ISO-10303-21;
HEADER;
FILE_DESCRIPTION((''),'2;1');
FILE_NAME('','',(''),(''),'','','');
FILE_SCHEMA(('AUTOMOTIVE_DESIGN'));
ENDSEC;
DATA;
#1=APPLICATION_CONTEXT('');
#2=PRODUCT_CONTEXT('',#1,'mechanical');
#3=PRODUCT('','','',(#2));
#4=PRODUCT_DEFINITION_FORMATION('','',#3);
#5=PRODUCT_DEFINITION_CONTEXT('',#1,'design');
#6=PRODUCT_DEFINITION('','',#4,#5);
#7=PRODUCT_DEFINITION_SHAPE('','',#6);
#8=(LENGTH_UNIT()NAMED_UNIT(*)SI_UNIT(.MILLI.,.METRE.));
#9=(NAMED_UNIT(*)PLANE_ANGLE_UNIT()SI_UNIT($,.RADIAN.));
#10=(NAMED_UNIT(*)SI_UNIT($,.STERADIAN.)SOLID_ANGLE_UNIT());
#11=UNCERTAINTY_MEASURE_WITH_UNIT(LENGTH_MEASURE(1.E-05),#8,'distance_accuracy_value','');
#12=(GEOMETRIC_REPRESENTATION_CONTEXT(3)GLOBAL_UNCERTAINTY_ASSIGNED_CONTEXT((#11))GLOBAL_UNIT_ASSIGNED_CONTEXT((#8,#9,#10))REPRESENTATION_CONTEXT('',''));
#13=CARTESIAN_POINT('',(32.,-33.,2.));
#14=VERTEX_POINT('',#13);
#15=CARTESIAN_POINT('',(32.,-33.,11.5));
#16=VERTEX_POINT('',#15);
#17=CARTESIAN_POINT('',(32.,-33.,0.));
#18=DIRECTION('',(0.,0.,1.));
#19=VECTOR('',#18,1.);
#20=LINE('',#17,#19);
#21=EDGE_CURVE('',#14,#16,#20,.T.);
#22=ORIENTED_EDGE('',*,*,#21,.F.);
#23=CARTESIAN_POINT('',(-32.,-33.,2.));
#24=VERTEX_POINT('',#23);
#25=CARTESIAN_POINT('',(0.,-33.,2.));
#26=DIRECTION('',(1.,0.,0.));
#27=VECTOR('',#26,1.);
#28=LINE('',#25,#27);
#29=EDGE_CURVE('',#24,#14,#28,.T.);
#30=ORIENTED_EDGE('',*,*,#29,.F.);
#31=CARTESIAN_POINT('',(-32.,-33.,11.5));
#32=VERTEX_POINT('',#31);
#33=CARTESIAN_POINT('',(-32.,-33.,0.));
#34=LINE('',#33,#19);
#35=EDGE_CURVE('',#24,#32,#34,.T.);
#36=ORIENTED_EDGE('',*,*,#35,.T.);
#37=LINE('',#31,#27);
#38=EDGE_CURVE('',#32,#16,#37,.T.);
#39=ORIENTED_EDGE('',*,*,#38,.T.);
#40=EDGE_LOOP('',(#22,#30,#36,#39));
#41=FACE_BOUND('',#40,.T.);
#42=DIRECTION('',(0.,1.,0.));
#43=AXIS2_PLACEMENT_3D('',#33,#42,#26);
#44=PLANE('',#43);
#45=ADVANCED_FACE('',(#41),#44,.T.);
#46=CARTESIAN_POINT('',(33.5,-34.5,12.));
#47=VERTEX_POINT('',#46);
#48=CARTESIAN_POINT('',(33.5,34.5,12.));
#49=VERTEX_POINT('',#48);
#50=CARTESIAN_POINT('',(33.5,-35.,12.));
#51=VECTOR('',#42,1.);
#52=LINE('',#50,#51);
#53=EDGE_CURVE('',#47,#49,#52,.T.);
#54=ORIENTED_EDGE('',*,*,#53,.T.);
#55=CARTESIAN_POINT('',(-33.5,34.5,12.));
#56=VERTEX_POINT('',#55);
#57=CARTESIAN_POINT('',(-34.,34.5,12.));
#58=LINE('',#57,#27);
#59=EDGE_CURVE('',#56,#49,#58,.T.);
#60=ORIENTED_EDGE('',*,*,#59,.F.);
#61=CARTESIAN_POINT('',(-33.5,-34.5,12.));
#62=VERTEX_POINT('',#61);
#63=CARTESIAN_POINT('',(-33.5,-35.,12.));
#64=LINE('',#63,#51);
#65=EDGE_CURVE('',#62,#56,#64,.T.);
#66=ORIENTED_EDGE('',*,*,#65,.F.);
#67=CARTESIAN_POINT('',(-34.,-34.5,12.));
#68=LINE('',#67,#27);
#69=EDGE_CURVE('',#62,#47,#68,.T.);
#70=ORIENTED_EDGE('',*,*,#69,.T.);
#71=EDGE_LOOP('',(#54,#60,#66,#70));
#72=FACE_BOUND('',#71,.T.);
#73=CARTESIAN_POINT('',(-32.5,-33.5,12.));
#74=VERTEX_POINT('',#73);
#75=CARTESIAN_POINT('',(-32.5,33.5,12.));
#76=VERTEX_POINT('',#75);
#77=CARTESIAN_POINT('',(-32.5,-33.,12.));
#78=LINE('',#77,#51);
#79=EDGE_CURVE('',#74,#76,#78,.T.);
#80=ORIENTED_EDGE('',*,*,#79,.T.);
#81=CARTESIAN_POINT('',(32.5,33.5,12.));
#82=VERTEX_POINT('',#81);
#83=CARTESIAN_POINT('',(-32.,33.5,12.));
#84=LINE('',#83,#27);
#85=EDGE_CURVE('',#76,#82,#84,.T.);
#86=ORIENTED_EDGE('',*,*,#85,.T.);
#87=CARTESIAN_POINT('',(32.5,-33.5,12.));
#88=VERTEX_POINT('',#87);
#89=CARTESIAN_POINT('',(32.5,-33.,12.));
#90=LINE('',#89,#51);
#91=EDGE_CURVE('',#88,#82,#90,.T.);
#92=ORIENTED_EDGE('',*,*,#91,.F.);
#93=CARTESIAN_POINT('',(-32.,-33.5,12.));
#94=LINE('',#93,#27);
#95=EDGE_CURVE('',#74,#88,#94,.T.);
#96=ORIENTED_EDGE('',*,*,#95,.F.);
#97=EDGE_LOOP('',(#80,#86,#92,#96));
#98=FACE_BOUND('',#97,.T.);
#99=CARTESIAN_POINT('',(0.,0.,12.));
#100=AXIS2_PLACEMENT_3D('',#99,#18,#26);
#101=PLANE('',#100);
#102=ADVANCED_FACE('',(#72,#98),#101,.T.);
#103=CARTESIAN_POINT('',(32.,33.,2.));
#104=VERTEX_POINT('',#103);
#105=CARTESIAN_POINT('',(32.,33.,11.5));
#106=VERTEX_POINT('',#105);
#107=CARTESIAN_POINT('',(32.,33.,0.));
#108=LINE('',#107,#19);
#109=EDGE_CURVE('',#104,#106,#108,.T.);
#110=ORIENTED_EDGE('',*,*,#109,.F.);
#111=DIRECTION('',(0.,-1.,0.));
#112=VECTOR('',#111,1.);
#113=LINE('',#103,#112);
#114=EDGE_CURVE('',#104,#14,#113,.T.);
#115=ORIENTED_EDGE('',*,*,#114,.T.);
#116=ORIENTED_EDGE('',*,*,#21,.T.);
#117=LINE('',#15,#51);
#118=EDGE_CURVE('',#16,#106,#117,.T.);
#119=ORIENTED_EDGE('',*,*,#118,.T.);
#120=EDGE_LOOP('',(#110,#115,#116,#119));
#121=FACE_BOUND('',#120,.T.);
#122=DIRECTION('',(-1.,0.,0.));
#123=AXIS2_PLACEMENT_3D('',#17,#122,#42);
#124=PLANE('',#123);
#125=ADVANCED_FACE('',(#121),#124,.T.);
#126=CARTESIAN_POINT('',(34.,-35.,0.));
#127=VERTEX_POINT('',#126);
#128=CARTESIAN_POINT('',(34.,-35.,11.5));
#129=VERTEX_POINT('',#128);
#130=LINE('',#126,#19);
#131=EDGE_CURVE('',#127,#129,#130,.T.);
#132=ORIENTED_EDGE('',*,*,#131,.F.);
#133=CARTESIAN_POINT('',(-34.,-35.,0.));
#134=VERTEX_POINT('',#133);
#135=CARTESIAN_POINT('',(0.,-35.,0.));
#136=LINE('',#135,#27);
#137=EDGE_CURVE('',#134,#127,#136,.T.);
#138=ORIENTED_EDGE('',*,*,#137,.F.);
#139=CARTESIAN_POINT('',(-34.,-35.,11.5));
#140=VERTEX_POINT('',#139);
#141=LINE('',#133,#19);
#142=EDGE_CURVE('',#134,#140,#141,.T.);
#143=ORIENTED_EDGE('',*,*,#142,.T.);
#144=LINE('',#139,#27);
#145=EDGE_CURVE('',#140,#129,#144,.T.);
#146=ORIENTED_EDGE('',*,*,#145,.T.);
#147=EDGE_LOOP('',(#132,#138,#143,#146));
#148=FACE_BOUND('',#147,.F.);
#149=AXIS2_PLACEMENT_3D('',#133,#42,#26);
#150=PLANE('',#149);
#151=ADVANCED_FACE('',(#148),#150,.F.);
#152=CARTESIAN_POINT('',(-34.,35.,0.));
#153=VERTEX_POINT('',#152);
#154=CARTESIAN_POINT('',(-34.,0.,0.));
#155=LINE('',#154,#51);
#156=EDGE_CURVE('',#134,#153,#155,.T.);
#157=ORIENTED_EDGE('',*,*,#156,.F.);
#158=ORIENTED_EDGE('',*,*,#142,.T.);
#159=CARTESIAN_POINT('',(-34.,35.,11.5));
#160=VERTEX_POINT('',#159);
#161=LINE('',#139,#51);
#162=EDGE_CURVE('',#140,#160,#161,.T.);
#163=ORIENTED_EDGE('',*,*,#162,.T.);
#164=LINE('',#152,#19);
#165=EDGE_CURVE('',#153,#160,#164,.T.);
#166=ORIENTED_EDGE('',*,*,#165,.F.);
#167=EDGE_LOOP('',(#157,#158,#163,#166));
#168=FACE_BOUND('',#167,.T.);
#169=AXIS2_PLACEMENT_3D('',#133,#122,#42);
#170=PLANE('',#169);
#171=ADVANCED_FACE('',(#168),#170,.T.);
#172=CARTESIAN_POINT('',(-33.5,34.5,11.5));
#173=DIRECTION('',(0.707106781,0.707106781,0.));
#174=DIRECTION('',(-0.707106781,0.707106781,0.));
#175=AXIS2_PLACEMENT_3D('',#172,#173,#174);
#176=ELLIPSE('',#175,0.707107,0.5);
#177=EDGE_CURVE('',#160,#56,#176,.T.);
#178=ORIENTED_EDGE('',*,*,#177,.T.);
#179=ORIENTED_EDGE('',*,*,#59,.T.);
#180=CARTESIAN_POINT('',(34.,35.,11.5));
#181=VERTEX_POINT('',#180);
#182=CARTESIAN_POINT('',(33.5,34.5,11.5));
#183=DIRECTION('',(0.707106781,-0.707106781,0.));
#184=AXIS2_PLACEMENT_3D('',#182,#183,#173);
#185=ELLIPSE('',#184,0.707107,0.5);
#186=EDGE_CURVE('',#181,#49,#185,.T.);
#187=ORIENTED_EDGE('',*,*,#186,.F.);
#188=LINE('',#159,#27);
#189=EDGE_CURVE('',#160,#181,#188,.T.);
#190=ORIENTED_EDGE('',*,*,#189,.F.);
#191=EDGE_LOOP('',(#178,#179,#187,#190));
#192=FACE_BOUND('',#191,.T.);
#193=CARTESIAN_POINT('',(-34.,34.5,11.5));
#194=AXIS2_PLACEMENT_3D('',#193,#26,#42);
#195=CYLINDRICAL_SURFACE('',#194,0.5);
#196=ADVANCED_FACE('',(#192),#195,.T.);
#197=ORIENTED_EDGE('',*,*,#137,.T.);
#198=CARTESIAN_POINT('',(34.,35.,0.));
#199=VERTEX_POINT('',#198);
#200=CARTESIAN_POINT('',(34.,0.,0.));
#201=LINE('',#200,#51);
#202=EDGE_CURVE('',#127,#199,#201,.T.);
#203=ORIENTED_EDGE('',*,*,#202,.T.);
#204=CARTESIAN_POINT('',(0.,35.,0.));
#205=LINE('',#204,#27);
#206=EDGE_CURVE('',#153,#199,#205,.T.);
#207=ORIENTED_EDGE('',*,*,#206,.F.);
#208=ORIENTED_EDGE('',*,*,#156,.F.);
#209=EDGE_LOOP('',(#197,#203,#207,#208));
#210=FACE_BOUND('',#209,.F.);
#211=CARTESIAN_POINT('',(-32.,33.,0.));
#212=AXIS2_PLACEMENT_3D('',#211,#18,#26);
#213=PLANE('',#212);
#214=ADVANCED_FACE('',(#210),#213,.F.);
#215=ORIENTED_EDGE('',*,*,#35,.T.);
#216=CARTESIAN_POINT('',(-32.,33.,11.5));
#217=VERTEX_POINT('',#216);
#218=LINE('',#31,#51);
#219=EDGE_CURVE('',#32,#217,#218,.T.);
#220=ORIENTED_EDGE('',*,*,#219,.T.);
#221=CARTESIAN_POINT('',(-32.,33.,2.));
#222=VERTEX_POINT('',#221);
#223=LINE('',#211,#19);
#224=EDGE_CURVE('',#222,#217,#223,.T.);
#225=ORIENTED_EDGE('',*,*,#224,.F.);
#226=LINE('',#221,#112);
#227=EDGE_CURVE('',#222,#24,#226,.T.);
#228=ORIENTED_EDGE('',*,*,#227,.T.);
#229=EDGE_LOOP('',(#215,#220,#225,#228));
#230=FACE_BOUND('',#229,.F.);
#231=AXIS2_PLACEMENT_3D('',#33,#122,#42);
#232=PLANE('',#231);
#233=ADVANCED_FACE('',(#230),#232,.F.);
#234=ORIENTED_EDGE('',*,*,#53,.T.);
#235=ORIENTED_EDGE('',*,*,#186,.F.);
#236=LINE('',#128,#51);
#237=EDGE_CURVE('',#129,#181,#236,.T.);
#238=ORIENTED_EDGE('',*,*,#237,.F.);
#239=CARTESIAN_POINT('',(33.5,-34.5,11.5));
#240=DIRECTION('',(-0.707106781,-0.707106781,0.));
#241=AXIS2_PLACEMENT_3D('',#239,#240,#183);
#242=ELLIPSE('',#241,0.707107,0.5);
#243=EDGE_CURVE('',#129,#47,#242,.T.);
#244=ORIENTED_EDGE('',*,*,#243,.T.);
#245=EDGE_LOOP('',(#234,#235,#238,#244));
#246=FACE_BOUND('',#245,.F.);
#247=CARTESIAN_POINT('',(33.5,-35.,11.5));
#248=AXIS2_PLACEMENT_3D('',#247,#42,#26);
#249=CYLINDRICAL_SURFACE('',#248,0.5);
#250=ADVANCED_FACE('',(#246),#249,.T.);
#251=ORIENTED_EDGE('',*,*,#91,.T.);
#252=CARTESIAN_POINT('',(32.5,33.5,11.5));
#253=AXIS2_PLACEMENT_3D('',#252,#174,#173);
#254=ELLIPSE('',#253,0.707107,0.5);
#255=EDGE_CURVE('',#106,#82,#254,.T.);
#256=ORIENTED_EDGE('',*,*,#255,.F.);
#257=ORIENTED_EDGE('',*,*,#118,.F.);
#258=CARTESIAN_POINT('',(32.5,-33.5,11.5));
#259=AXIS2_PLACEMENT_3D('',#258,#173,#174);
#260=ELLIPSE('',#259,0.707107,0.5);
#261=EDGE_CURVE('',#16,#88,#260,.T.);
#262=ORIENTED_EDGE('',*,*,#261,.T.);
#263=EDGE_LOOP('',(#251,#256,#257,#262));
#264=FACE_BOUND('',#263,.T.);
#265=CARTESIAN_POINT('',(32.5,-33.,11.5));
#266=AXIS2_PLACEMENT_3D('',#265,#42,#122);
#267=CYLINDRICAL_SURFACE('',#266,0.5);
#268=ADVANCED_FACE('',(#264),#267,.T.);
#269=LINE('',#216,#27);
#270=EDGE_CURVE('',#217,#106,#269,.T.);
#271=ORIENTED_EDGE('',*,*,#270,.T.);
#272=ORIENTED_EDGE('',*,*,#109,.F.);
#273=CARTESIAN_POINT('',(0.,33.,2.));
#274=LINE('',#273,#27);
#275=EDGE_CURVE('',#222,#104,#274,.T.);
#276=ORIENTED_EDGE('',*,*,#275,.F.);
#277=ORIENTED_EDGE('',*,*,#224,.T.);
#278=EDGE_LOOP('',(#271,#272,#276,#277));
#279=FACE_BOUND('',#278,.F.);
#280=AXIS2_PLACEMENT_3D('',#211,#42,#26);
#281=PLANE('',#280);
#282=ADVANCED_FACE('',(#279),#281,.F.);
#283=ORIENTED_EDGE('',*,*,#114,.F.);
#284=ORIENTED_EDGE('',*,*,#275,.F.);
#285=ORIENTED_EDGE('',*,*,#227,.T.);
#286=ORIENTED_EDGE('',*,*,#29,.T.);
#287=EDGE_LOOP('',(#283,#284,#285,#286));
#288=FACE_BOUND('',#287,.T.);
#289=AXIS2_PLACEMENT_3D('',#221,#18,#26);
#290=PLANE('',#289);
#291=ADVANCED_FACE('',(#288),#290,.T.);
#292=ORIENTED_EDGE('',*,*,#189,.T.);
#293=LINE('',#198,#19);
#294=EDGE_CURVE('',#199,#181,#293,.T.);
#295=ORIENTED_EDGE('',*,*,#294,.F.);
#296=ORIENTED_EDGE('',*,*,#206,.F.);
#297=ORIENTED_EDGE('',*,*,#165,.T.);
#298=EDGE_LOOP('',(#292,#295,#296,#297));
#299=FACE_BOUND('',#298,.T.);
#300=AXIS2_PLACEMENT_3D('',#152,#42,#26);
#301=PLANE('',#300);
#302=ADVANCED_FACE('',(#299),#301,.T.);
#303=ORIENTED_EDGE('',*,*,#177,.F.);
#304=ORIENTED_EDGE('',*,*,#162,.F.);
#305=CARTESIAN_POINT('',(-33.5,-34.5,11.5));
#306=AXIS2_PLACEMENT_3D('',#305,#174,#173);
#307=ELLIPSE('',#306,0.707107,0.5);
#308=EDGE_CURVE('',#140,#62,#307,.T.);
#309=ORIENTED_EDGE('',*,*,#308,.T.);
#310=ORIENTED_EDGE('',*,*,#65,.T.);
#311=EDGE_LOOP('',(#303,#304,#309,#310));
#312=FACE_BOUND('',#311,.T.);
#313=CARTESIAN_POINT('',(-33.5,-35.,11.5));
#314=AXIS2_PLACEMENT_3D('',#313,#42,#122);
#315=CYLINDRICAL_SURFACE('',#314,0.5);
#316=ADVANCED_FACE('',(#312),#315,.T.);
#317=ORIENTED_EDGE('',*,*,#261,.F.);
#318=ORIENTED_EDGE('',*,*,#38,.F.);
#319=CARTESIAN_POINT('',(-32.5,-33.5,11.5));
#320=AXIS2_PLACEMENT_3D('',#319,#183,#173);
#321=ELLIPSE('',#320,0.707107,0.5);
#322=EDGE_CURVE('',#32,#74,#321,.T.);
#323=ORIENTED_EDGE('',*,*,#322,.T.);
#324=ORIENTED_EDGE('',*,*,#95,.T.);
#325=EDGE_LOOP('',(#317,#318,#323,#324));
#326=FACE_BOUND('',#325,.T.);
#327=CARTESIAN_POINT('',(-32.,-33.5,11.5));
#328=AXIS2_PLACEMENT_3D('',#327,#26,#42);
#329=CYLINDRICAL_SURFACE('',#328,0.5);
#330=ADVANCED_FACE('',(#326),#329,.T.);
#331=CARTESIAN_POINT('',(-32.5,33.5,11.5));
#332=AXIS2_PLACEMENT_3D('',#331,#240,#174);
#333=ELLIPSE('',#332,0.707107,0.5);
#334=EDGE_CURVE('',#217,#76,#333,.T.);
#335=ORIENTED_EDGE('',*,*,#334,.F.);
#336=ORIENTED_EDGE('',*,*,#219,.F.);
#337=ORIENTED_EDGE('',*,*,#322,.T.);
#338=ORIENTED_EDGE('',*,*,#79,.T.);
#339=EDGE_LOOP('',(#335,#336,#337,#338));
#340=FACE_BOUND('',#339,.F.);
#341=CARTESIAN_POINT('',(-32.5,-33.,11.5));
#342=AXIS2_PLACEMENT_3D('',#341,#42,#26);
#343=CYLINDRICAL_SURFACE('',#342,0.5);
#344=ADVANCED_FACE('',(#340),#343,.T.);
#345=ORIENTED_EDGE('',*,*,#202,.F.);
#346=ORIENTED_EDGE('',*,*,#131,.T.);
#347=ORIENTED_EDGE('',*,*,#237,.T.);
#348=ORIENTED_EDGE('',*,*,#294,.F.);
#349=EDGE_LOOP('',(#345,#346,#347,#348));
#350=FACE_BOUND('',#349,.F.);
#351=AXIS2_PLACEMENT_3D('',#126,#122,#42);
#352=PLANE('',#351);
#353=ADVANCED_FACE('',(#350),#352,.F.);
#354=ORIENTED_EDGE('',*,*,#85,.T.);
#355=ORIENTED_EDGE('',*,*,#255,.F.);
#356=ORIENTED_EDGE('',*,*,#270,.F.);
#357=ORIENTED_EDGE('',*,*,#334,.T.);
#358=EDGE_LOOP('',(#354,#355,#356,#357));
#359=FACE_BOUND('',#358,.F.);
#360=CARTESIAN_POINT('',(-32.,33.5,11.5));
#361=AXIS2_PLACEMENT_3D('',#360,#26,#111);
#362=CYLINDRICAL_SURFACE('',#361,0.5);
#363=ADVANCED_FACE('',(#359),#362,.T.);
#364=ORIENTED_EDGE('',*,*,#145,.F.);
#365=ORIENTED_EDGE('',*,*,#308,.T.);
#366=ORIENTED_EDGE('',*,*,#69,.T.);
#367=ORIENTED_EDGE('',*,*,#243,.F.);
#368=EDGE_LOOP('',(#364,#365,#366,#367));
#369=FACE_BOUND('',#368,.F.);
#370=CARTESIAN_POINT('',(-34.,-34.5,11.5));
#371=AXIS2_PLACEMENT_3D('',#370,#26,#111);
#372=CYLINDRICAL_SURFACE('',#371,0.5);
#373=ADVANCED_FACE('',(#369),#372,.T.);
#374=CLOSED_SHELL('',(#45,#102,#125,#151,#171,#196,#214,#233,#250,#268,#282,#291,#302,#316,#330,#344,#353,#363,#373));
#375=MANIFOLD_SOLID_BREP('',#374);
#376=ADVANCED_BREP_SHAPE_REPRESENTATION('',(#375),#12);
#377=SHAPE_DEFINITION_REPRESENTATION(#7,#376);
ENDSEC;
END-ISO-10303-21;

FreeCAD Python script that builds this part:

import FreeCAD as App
import Part
import Sketcher

V = App.Vector


def edges_at(feature, points):
    """Names of the edges that pass closest to the given points."""
    edges = feature.Shape.Edges
    near = lambda p: min(range(len(edges)), key=lambda i: edges[i].distToShape(Part.Vertex(*p))[0])
    return sorted({f"Edge{near(p) + 1}" for p in points})


def add_polygon(sketch, points):
    """Adds a closed chain of lines whose ends are joined by coincident constraints."""
    first, n = sketch.GeometryCount, len(points)
    for a, b in zip(points, points[1:] + points[:1]):
        sketch.addGeometry(Part.LineSegment(App.Vector(*a, 0), App.Vector(*b, 0)), False)
    for i in range(n):
        sketch.addConstraint(Sketcher.Constraint("Coincident", first + i, 2, first + (i + 1) % n, 1))

doc = App.newDocument("Part")
body = doc.addObject("PartDesign::Body", "Body")

# Sketch on XY plane
sketch1 = body.newObject("Sketcher::SketchObject", "Sketch")
sketch1.AttachmentSupport = (doc.getObject("XY_Plane"), [""])
sketch1.MapMode = "FlatFace"
add_polygon(sketch1, [(-34, 35), (-34, -35), (34, -35), (34, 35)])  # lines 0-3
add_polygon(sketch1, [(32, -33), (-32, -33), (-32, 33), (32, 33)])  # lines 4-7
sketch1.addConstraint([
    Sketcher.Constraint("Vertical", 0),
    Sketcher.Constraint("Horizontal", 1),
    Sketcher.Constraint("Vertical", 2),
    Sketcher.Constraint("Horizontal", 3),
    Sketcher.Constraint("Horizontal", 4),
    Sketcher.Constraint("Vertical", 5),
    Sketcher.Constraint("Horizontal", 6),
    Sketcher.Constraint("Vertical", 7),
    Sketcher.Constraint("Symmetric", 0, 2, 2, 2, -1, 1),
    Sketcher.Constraint("Symmetric", 4, 2, 6, 2, -1, 1),
    Sketcher.Constraint("DistanceX", 1, 1, 1, 2, 68.0),
    Sketcher.Constraint("DistanceX", 4, 2, 4, 1, 64.0),
    Sketcher.Constraint("DistanceY", 0, 2, 0, 1, 70.0),
    Sketcher.Constraint("DistanceY", 5, 1, 5, 2, 66.0),
])
pad1 = body.newObject("PartDesign::Pad", "Pad")
pad1.Profile = sketch1
pad1.Length = 12
doc.recompute()

fillet = body.newObject("PartDesign::Fillet", "Fillet")
fillet.Base = (pad1, edges_at(pad1, [
    (-34, 0, 12),
    (0, -35, 12),
    (0, 35, 12),
    (34, 0, 12),
    (-32, 0, 12),
    (0, 33, 12),
    (32, 0, 12),
    (0, -33, 12),
]))
fillet.Radius = 0.5

# Sketch on XZ plane
sketch2 = body.newObject("Sketcher::SketchObject", "Sketch001")
sketch2.AttachmentSupport = (doc.getObject("XZ_Plane"), [""])
sketch2.MapMode = "FlatFace"
sketch2.AttachmentOffset = App.Placement(V(0, 0, -33), App.Rotation())
add_polygon(sketch2, [(-32, 2), (-32, 0), (32, 0), (32, 2)])  # lines 0-3
sketch2.addConstraint([
    Sketcher.Constraint("Vertical", 0),
    Sketcher.Constraint("Horizontal", 1),
    Sketcher.Constraint("Vertical", 2),
    Sketcher.Constraint("Horizontal", 3),
    Sketcher.Constraint("Symmetric", 0, 2, 1, 2, -1, 1),
    Sketcher.Constraint("DistanceX", 1, 1, 1, 2, 64.0),
    Sketcher.Constraint("DistanceY", 0, 2, 0, 1, 2.0),
])
pad2 = body.newObject("PartDesign::Pad", "Pad001")
pad2.Profile = sketch2
pad2.Type = "UpToLast"

doc.recompute()
